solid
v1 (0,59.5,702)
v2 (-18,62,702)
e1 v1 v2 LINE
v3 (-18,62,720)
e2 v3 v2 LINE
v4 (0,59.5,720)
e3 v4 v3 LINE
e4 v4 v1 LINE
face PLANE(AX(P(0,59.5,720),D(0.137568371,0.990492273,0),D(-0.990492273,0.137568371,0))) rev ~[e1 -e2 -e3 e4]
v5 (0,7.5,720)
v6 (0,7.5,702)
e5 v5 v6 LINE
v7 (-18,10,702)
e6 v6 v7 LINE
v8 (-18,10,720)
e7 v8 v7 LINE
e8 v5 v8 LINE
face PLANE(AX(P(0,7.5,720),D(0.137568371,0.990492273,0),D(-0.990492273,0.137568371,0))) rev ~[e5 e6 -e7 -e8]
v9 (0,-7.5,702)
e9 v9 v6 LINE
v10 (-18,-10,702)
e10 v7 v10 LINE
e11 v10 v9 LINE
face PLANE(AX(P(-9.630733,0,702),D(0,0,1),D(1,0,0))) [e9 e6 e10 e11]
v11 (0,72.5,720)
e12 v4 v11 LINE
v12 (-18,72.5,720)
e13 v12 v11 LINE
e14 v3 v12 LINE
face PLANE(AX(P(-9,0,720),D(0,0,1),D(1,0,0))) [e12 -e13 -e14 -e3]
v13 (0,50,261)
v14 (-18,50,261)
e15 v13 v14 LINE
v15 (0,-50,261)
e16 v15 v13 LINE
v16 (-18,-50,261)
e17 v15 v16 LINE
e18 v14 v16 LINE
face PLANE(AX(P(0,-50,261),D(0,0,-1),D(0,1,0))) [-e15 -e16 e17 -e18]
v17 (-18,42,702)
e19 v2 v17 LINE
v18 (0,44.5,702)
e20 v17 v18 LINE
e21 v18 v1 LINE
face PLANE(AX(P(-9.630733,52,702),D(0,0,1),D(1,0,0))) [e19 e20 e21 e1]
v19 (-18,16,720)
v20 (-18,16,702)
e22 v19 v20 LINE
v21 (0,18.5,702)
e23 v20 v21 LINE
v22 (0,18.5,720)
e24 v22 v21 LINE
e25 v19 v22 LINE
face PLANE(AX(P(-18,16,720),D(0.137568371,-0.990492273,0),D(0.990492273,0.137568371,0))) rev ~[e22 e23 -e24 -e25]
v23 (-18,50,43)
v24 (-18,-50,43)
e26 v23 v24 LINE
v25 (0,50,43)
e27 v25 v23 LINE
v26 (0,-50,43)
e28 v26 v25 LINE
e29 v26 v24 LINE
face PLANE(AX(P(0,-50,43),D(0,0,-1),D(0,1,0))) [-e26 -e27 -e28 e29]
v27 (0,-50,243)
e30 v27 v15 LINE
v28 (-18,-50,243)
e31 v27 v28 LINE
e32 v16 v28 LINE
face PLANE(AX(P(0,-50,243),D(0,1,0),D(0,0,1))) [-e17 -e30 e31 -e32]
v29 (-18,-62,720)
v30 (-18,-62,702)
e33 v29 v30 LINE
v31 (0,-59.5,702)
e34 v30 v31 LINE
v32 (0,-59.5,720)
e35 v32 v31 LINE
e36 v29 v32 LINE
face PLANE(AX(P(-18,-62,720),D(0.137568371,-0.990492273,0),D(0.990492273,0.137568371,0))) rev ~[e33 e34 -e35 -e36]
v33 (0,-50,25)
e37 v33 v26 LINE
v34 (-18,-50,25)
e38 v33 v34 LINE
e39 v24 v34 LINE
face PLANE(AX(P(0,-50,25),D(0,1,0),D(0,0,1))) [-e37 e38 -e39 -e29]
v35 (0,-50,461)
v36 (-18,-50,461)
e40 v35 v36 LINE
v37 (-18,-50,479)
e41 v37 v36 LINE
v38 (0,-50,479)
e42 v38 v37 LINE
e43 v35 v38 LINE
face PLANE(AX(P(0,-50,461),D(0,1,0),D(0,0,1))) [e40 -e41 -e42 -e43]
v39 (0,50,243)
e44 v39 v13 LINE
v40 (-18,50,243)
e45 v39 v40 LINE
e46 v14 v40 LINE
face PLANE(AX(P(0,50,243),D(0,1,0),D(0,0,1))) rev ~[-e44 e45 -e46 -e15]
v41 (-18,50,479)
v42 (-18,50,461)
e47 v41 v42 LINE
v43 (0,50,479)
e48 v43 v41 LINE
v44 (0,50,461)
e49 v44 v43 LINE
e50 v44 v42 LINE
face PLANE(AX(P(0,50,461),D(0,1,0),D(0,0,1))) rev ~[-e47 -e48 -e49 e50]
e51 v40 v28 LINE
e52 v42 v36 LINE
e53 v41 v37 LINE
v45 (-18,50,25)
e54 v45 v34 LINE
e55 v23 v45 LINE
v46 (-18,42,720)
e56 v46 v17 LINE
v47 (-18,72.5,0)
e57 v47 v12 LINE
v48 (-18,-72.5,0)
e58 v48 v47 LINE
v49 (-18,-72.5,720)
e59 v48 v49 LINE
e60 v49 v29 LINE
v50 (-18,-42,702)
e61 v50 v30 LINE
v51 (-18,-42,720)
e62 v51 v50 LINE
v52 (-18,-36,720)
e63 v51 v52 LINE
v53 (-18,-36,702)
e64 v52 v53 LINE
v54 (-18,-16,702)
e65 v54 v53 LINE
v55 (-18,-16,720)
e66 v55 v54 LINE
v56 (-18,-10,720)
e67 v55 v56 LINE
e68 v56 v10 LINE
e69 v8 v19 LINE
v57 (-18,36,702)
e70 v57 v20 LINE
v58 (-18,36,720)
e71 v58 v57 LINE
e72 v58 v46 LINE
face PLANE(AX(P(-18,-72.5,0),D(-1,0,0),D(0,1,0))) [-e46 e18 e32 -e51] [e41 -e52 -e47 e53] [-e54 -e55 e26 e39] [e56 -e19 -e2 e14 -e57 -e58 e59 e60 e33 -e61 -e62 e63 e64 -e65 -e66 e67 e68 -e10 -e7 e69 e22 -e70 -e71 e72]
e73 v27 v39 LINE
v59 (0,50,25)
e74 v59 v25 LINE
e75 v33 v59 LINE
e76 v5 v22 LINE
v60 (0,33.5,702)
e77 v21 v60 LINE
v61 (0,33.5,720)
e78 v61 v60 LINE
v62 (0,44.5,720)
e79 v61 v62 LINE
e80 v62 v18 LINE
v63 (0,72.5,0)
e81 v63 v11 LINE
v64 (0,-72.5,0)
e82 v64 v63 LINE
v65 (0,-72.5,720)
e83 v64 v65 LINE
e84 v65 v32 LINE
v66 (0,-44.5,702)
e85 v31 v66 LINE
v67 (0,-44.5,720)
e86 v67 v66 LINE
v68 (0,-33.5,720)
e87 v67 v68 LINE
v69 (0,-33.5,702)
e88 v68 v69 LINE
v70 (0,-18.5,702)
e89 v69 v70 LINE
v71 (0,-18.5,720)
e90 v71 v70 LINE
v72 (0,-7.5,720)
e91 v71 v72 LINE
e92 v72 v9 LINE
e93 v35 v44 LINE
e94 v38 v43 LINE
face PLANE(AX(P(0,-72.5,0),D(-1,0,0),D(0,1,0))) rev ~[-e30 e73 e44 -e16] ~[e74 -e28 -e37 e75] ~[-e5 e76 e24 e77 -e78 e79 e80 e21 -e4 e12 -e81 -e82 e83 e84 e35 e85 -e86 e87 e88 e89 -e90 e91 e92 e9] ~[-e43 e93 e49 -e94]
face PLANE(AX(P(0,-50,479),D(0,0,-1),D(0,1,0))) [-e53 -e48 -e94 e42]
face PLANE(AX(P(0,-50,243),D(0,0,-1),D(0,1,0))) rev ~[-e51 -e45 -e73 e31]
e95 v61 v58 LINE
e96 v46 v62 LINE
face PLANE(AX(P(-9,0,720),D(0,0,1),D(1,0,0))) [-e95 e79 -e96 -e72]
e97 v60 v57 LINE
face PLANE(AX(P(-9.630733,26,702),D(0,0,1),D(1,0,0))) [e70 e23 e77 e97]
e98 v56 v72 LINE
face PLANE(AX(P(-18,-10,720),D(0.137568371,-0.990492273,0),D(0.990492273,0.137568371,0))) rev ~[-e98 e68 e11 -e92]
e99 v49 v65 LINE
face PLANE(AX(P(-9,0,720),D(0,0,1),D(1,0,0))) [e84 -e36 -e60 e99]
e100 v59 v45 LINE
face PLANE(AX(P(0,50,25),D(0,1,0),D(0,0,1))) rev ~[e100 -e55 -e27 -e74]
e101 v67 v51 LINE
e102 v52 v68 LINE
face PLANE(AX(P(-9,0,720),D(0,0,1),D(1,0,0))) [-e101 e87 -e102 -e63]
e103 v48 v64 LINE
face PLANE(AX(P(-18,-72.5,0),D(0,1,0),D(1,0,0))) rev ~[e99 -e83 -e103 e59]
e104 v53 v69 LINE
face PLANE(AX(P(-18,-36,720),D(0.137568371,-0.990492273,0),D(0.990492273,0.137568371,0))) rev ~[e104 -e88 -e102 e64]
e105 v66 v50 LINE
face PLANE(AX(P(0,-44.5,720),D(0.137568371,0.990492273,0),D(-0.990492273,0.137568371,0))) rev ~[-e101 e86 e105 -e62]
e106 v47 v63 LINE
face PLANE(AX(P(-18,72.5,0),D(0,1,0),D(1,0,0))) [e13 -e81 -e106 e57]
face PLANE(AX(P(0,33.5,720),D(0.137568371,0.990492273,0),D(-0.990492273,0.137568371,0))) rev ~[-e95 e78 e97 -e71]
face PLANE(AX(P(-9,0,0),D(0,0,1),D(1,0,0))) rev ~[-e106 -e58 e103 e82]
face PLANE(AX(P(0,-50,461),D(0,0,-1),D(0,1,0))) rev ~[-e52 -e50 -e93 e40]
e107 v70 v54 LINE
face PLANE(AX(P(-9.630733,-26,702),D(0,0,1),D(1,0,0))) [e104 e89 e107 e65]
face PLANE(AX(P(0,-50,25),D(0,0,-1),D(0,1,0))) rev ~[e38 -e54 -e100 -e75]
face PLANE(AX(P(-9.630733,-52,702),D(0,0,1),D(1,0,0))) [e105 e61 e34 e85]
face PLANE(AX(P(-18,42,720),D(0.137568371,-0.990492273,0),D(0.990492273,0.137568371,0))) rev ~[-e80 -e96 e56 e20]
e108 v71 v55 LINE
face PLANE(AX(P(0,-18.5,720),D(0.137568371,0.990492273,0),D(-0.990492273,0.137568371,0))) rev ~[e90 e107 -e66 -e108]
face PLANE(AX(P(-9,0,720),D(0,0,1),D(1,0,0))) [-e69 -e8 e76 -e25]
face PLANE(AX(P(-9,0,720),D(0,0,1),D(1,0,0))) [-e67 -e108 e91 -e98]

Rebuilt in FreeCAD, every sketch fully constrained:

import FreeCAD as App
import Part
import Sketcher

V = App.Vector
Q = App.Units.Quantity


def add_polygon(sketch, points):
    """Adds a closed chain of lines whose ends are joined by coincident constraints."""
    first, n = sketch.GeometryCount, len(points)
    for a, b in zip(points, points[1:] + points[:1]):
        sketch.addGeometry(Part.LineSegment(App.Vector(*a, 0), App.Vector(*b, 0)), False)
    for i in range(n):
        sketch.addConstraint(Sketcher.Constraint("Coincident", first + i, 2, first + (i + 1) % n, 1))

doc = App.newDocument("Part")
body = doc.addObject("PartDesign::Body", "Body")

# Sketch on XY plane
sketch1 = doc.addObject("Sketcher::SketchObject", "Sketch")
body.addObject(sketch1)
sketch1.AttachmentSupport = (doc.XY_Plane, [""])
sketch1.MapMode = "FlatFace"
add_polygon(sketch1, [(-18, 72.5), (-18, -72.5), (0, -72.5), (0, 72.5)])  # lines 0-3
sketch1.addConstraint([
    Sketcher.Constraint("Vertical", 0),
    Sketcher.Constraint("Horizontal", 1),
    Sketcher.Constraint("Vertical", 2),
    Sketcher.Constraint("Horizontal", 3),
    Sketcher.Constraint("Symmetric", 1, 2, 2, 2, -1, 1),
    Sketcher.Constraint("DistanceX", 1, 1, 1, 2, Q("18 mm")),
    Sketcher.Constraint("DistanceY", 0, 2, 0, 1, Q("145 mm")),
])
pad1 = doc.addObject("PartDesign::Pad", "Pad")
body.addObject(pad1)
pad1.Profile = sketch1
pad1.Length = 720

# Sketch on YZ plane
sketch2 = doc.addObject("Sketcher::SketchObject", "Sketch001")
body.addObject(sketch2)
sketch2.AttachmentSupport = (doc.YZ_Plane, [""])
sketch2.MapMode = "FlatFace"
add_polygon(sketch2, [(-50, 43), (-50, 25), (50, 25), (50, 43)])  # lines 0-3
add_polygon(sketch2, [(-50, 261), (-50, 243), (50, 243), (50, 261)])  # lines 4-7
add_polygon(sketch2, [(-50, 479), (-50, 461), (50, 461), (50, 479)])  # lines 8-11
sketch2.addConstraint([
    Sketcher.Constraint("Vertical", 0),
    Sketcher.Constraint("Horizontal", 1),
    Sketcher.Constraint("Vertical", 2),
    Sketcher.Constraint("Horizontal", 3),
    Sketcher.Constraint("Vertical", 4),
    Sketcher.Constraint("Horizontal", 5),
    Sketcher.Constraint("Vertical", 6),
    Sketcher.Constraint("Horizontal", 7),
    Sketcher.Constraint("Vertical", 8),
    Sketcher.Constraint("Horizontal", 9),
    Sketcher.Constraint("Vertical", 10),
    Sketcher.Constraint("Horizontal", 11),
    Sketcher.Constraint("Vertical", 3, 2, 4, 2),
    Sketcher.Constraint("Vertical", 2, 2, 5, 2),
    Sketcher.Constraint("Vertical", 7, 2, 8, 2),
    Sketcher.Constraint("Vertical", 6, 2, 9, 2),
    Sketcher.Constraint("Equal", 2, 4),
    Sketcher.Constraint("Equal", 6, 8),
    Sketcher.Constraint("DistanceX", 1, 1, 1, 2, Q("100 mm")),
    Sketcher.Constraint("DistanceY", 0, 2, 0, 1, Q("18 mm")),
    Sketcher.Constraint("DistanceX", 0, 2, -1, 1, Q("50 mm")),
    Sketcher.Constraint("DistanceY", -1, 1, 0, 2, Q("25 mm")),
    Sketcher.Constraint("DistanceY", -1, 1, 4, 2, Q("243 mm")),
    Sketcher.Constraint("DistanceY", -1, 1, 8, 2, Q("461 mm")),
])
pocket1 = doc.addObject("PartDesign::Pocket", "Pocket")
body.addObject(pocket1)
pocket1.Profile = sketch2
pocket1.Type = "ThroughAll"

# Sketch on XY plane
sketch3 = doc.addObject("Sketcher::SketchObject", "Sketch002")
body.addObject(sketch3)
sketch3.AttachmentSupport = (doc.XY_Plane, [""])
sketch3.MapMode = "FlatFace"
sketch3.AttachmentOffset = App.Placement(V(0, 0, 720), App.Rotation())
add_polygon(sketch3, [(-18, -10), (0, -7.5), (0, 7.5), (-18, 10)])  # lines 0-3
add_polygon(sketch3, [(0, -18.5), (-18, -16), (-18, -36), (0, -33.5)])  # lines 4-7
add_polygon(sketch3, [(-18, 36), (-18, 16), (0, 18.5), (0, 33.5)])  # lines 8-11
add_polygon(sketch3, [(-18, 62), (-18, 42), (0, 44.5), (0, 59.5)])  # lines 12-15
add_polygon(sketch3, [(0, -44.5), (-18, -42), (-18, -62), (0, -59.5)])  # lines 16-19
sketch3.addConstraint([
    Sketcher.Constraint("Vertical", 1),
    Sketcher.Constraint("Vertical", 3),
    Sketcher.Constraint("Vertical", 5),
    Sketcher.Constraint("Vertical", 7),
    Sketcher.Constraint("Vertical", 8),
    Sketcher.Constraint("Vertical", 10),
    Sketcher.Constraint("Vertical", 12),
    Sketcher.Constraint("Vertical", 14),
    Sketcher.Constraint("Vertical", 17),
    Sketcher.Constraint("Vertical", 19),
    Sketcher.Constraint("Symmetric", 0, 2, 1, 2, -1, 1),
    Sketcher.Constraint("Symmetric", 7, 2, 9, 2, -1, 1),
    Sketcher.Constraint("Symmetric", 14, 2, 18, 2, -1, 1),
    Sketcher.Constraint("Symmetric", 4, 2, 8, 2, -1),
    Sketcher.Constraint("Symmetric", 6, 2, 10, 2, -1),
    Sketcher.Constraint("Symmetric", 12, 2, 16, 2, -1),
    Sketcher.Constraint("Symmetric", 13, 2, 19, 2, -1),
    Sketcher.Constraint("Parallel", 2, 4),
    Sketcher.Constraint("Parallel", 0, 6),
    Sketcher.Constraint("Parallel", 6, 9),
    Sketcher.Constraint("Parallel", 4, 11),
    Sketcher.Constraint("Parallel", 9, 13),
    Sketcher.Constraint("Parallel", 11, 15),
    Sketcher.Constraint("Parallel", 13, 18),
    Sketcher.Constraint("Vertical", 3, 2, 4, 2),
    Sketcher.Constraint("Vertical", 11, 2, 12, 2),
    Sketcher.Constraint("Equal", 3, 5),
    Sketcher.Constraint("Equal", 8, 12),
    Sketcher.Constraint("DistanceY", 1, 1, 1, 2, Q("15 mm")),
    Sketcher.Constraint("DistanceY", 3, 2, 3, 1, Q("20 mm")),
    Sketcher.Constraint("DistanceX", 2, 2, -1, 1, Q("18 mm")),
    Sketcher.Constraint("DistanceY", 4, 2, -1, 1, Q("16 mm")),
    Sketcher.Constraint("DistanceY", -1, 1, 12, 2, Q("42 mm")),
])
pocket2 = doc.addObject("PartDesign::Pocket", "Pocket001")
body.addObject(pocket2)
pocket2.Profile = sketch3
pocket2.Length = 18

doc.recompute()
